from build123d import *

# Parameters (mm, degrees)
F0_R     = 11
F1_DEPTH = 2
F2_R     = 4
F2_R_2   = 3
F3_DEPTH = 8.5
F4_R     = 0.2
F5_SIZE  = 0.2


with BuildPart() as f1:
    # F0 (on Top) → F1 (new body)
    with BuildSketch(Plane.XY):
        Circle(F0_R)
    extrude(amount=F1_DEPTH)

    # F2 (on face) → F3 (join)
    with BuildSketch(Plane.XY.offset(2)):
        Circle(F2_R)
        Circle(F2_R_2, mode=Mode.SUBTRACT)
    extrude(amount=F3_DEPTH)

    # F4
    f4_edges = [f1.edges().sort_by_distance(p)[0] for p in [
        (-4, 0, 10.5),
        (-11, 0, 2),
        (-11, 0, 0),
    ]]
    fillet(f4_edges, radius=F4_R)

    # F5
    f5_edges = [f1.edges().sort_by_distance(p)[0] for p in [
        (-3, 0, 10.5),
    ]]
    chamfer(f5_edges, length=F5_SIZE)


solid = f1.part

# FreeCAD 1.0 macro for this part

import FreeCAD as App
import Part
import Sketcher

V = App.Vector


def edges_at(feature, points):
    """Names of the edges that pass closest to the given points."""
    edges = feature.Shape.Edges
    near = lambda p: min(range(len(edges)), key=lambda i: edges[i].distToShape(Part.Vertex(*p))[0])
    return sorted({f"Edge{near(p) + 1}" for p in points})

doc = App.newDocument("Part")
body = doc.addObject("PartDesign::Body", "Body")

# Sketch on XY plane
sketch1 = doc.addObject("Sketcher::SketchObject", "Sketch")
body.addObject(sketch1)
sketch1.AttachmentSupport = (doc.XY_Plane, [""])
sketch1.MapMode = "FlatFace"
sketch1.addGeometry(Part.Circle(V(0, 0, 0), V(0, 0, 1), 11), False)
sketch1.addConstraint([
    Sketcher.Constraint("Coincident", 0, 3, -1, 1),
    Sketcher.Constraint("Diameter", 0, 22.0),
])
pad1 = doc.addObject("PartDesign::Pad", "Pad")
body.addObject(pad1)
pad1.Profile = sketch1
pad1.Length = 2

# Sketch on XY plane
sketch2 = doc.addObject("Sketcher::SketchObject", "Sketch001")
body.addObject(sketch2)
sketch2.AttachmentSupport = (doc.XY_Plane, [""])
sketch2.MapMode = "FlatFace"
sketch2.AttachmentOffset = App.Placement(V(0, 0, 2), App.Rotation())
sketch2.addGeometry([
    Part.Circle(V(0, 0, 0), V(0, 0, 1), 4),
    Part.Circle(V(0, 0, 0), V(0, 0, 1), 3),
], False)
sketch2.addConstraint([
    Sketcher.Constraint("Coincident", 0, 3, -1, 1),
    Sketcher.Constraint("Coincident", 1, 3, -1, 1),
    Sketcher.Constraint("Diameter", 0, 8.0),
    Sketcher.Constraint("Diameter", 1, 6.0),
])
pad2 = doc.addObject("PartDesign::Pad", "Pad001")
body.addObject(pad2)
pad2.Profile = sketch2
pad2.Length = 8.5
doc.recompute()

fillet = doc.addObject("PartDesign::Fillet", "Fillet")
body.addObject(fillet)
fillet.Base = (pad2, edges_at(pad2, [(-4, 0, 10.5), (-11, 0, 2), (-11, 0, 0)]))
fillet.Radius = 0.2
doc.recompute()

chamfer = doc.addObject("PartDesign::Chamfer", "Chamfer")
body.addObject(chamfer)
chamfer.Base = (fillet, edges_at(fillet, [(-3, 0, 10.5)]))
chamfer.Size = 0.2

doc.recompute()
